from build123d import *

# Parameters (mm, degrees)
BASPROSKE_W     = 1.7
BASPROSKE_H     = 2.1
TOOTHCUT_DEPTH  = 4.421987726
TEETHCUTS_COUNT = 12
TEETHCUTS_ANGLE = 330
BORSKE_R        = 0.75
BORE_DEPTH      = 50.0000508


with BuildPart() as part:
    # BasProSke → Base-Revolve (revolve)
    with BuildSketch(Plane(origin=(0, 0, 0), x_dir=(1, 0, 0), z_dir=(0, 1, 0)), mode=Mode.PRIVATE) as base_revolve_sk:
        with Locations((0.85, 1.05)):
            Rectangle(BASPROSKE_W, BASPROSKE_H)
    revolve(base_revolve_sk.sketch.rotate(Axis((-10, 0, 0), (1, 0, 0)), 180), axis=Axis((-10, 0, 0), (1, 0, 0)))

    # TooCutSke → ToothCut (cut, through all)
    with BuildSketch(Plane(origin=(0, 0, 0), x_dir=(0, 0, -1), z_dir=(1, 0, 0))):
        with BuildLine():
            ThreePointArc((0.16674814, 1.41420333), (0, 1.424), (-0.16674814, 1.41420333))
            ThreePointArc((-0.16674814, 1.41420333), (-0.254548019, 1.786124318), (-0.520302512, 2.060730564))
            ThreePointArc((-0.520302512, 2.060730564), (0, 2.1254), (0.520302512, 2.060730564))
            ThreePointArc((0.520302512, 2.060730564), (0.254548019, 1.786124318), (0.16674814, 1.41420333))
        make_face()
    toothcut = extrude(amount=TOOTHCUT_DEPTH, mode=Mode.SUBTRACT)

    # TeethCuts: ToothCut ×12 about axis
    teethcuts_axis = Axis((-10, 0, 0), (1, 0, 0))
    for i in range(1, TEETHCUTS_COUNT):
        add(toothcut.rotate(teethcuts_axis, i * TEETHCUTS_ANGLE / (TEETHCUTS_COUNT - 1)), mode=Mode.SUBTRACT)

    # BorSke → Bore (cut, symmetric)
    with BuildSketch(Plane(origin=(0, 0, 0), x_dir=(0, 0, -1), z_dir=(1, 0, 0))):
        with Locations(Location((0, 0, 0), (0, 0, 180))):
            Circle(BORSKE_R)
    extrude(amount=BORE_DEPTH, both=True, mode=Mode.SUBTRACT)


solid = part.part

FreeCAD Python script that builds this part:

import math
import FreeCAD as App
import Part
import Sketcher

V = App.Vector
Q = App.Units.Quantity


def add_polygon(sketch, points):
    """Adds a closed chain of lines whose ends are joined by coincident constraints."""
    first, n = sketch.GeometryCount, len(points)
    for a, b in zip(points, points[1:] + points[:1]):
        sketch.addGeometry(Part.LineSegment(App.Vector(*a, 0), App.Vector(*b, 0)), False)
    for i in range(n):
        sketch.addConstraint(Sketcher.Constraint("Coincident", first + i, 2, first + (i + 1) % n, 1))

doc = App.newDocument("Part")
params = doc.addObject("Spreadsheet::Sheet", "Params")
for row, (alias, value) in enumerate([
    ("sketch1_width", "1.7 mm"),
    ("sketch1_height", "2.1 mm"),
    ("revolution_angle", "360 deg"),
    ("sketch2_radius", "0.72 mm"),
    ("sketch3_diameter", "1.5 mm"),
    ("pocket2_length", "100.000102 mm"),
], start=1):
    params.set(f"A{row}", alias)
    params.set(f"B{row}", "=" + value)
    params.setAlias(f"B{row}", alias)

body = doc.addObject("PartDesign::Body", "Body")

sketch1 = doc.addObject("Sketcher::SketchObject", "Sketch")
body.addObject(sketch1)
sketch1.AttachmentSupport = (doc.XZ_Plane, [""])
sketch1.MapMode = "FlatFace"
add_polygon(sketch1, [(0, -2.1), (0, 0), (1.7, 0), (1.7, -2.1)])
sketch1.addConstraint([
    Sketcher.Constraint("Vertical", 0),
    Sketcher.Constraint("Horizontal", 1),
    Sketcher.Constraint("Vertical", 2),
    Sketcher.Constraint("Horizontal", 3),
    Sketcher.Constraint("Coincident", 0, 2, -1, 1),
    Sketcher.Constraint("DistanceX", 1, 1, 1, 2, Q("1.7 mm")),
    Sketcher.Constraint("DistanceY", 0, 1, 0, 2, Q("2.1 mm")),
])
sketch1.setExpression("Constraints[9]", "Params.sketch1_width")
sketch1.setExpression("Constraints[10]", "Params.sketch1_height")
revolution = doc.addObject("PartDesign::Revolution", "Revolution")
body.addObject(revolution)
revolution.Profile = sketch1
revolution.ReferenceAxis = (sketch1, ["H_Axis"])
revolution.setExpression("Angle", "Params.revolution_angle")

sketch2 = doc.addObject("Sketcher::SketchObject", "Sketch001")
body.addObject(sketch2)
sketch2.AttachmentSupport = (doc.YZ_Plane, [""])
sketch2.MapMode = "FlatFace"
sketch2.addGeometry([
    Part.ArcOfCircle(Part.Circle(V(0, 0, 0), V(0, 0, 1), 1.42), math.radians(-6.72), math.radians(6.72)),
    Part.ArcOfCircle(Part.Circle(V(1.44, -0.89, 0), V(0, 0, 1), 0.72), math.radians(31), math.radians(92)),
    Part.ArcOfCircle(Part.Circle(V(0, 0, 0), V(0, 0, 1), 2.13), math.radians(-14), math.radians(14)),
    Part.ArcOfCircle(Part.Circle(V(1.44, 0.89, 0), V(0, 0, 1), 0.72), math.radians(-92), math.radians(-31)),
], False)
sketch2.addConstraint([
    Sketcher.Constraint("Coincident", 0, 1, 1, 2),
    Sketcher.Constraint("Coincident", 1, 1, 2, 1),
    Sketcher.Constraint("Coincident", 2, 2, 3, 2),
    Sketcher.Constraint("Coincident", 3, 1, 0, 2),
    Sketcher.Constraint("Coincident", 0, 3, -1, 1),
    Sketcher.Constraint("Coincident", 2, 3, -1, 1),
    Sketcher.Constraint("Equal", 1, 3),
    Sketcher.Constraint("Symmetric", 1, 3, 3, 3, -1),
    Sketcher.Constraint("Radius", 1, Q("0.72 mm")),
    Sketcher.Constraint("Radius", 0, Q("1.424 mm")),
    Sketcher.Constraint("Radius", 2, Q("2.1254 mm")),
    Sketcher.Constraint("DistanceX", -1, 1, 1, 3, Q("1.440671 mm")),
    Sketcher.Constraint("DistanceY", 1, 3, -1, 1, Q("0.886261 mm")),
])
sketch2.setExpression("Constraints[8]", "Params.sketch2_radius")
pocket1 = doc.addObject("PartDesign::Pocket", "Pocket")
body.addObject(pocket1)
pocket1.Profile = sketch2
pocket1.Type = "ThroughAll"
pocket1.Reversed = True
doc.recompute()

polarpattern = doc.addObject("PartDesign::PolarPattern", "PolarPattern")
body.addObject(polarpattern)
polarpattern.Originals = [pocket1]
polarpattern.Axis = (doc.X_Axis, [""])
polarpattern.Angle = 360
polarpattern.Occurrences = 12
body.Tip = polarpattern

sketch3 = doc.addObject("Sketcher::SketchObject", "Sketch002")
body.addObject(sketch3)
sketch3.AttachmentSupport = (doc.YZ_Plane, [""])
sketch3.MapMode = "FlatFace"
sketch3.addGeometry(Part.Circle(V(0, 0, 0), V(0, 0, 1), 0.8), False)
sketch3.addConstraint([
    Sketcher.Constraint("Coincident", 0, 3, -1, 1),
    Sketcher.Constraint("Diameter", 0, Q("1.5 mm")),
])
sketch3.setExpression("Constraints[1]", "Params.sketch3_diameter")
pocket2 = doc.addObject("PartDesign::Pocket", "Pocket001")
body.addObject(pocket2)
pocket2.Profile = sketch3
pocket2.setExpression("Length", "Params.pocket2_length")
pocket2.Midplane = True

doc.recompute()
